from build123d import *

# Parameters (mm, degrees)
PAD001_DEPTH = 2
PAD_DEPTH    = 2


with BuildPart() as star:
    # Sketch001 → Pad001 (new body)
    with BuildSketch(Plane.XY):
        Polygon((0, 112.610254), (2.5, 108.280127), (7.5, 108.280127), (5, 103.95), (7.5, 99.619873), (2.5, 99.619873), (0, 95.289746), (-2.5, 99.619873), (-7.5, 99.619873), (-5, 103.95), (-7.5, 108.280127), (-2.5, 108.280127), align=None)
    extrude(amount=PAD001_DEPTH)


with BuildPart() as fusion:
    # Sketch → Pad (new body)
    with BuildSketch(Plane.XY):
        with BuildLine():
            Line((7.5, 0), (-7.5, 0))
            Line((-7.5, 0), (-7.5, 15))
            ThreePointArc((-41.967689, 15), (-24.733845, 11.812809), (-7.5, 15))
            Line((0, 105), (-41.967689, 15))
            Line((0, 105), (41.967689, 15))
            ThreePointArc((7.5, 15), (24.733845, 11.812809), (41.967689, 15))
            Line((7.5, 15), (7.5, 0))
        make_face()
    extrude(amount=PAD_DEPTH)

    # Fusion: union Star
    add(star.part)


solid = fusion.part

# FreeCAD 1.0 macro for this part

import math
import FreeCAD as App
import Part
import Sketcher
Q = App.Units.Quantity

doc = App.newDocument("Part")
params = doc.addObject("Spreadsheet::Sheet", "Params")
for row, (alias, value) in enumerate([
    ("sketch1_width", "5 mm"),
    ("sketch1_length", "5 mm"),
    ("pad1_length", "2 mm"),
    ("sketch2_width", "15 mm"),
    ("pad2_length", "2 mm"),
], start=1):
    params.set(f"A{row}", alias)
    params.set(f"B{row}", "=" + value)
    params.setAlias(f"B{row}", alias)

body = doc.addObject("PartDesign::Body", "Body")

# Sketch on XY plane
sketch1 = body.newObject("Sketcher::SketchObject", "Sketch")
sketch1.AttachmentSupport = (doc.getObject("XY_Plane"), [""])
sketch1.MapMode = "FlatFace"
sketch1.addGeometry(Part.LineSegment(App.Vector(2.5, 108.3, 0), App.Vector(0, 112.6, 0)), False)
sketch1.addGeometry(Part.LineSegment(App.Vector(0, 112.6, 0), App.Vector(-2.5, 108.3, 0)), False)
sketch1.addGeometry(Part.LineSegment(App.Vector(-2.5, 108.3, 0), App.Vector(-7.5, 108.3, 0)), False)
sketch1.addGeometry(Part.LineSegment(App.Vector(-7.5, 108.3, 0), App.Vector(-5, 104, 0)), False)
sketch1.addGeometry(Part.LineSegment(App.Vector(-5, 104, 0), App.Vector(-7.5, 99.6, 0)), False)
sketch1.addGeometry(Part.LineSegment(App.Vector(-7.5, 99.6, 0), App.Vector(-2.5, 99.6, 0)), False)
sketch1.addGeometry(Part.LineSegment(App.Vector(-2.5, 99.6, 0), App.Vector(0, 95.3, 0)), False)
sketch1.addGeometry(Part.LineSegment(App.Vector(0, 95.3, 0), App.Vector(2.5, 99.6, 0)), False)
sketch1.addGeometry(Part.LineSegment(App.Vector(2.5, 99.6, 0), App.Vector(7.5, 99.6, 0)), False)
sketch1.addGeometry(Part.LineSegment(App.Vector(7.5, 99.6, 0), App.Vector(5, 104, 0)), False)
sketch1.addGeometry(Part.LineSegment(App.Vector(5, 104, 0), App.Vector(7.5, 108.3, 0)), False)
sketch1.addGeometry(Part.LineSegment(App.Vector(7.5, 108.3, 0), App.Vector(2.5, 108.3, 0)), False)
sketch1.addConstraint(Sketcher.Constraint("Coincident", 0, 2, 1, 1))
sketch1.addConstraint(Sketcher.Constraint("Coincident", 1, 2, 2, 1))
sketch1.addConstraint(Sketcher.Constraint("Coincident", 2, 2, 3, 1))
sketch1.addConstraint(Sketcher.Constraint("Coincident", 3, 2, 4, 1))
sketch1.addConstraint(Sketcher.Constraint("Coincident", 4, 2, 5, 1))
sketch1.addConstraint(Sketcher.Constraint("Coincident", 5, 2, 6, 1))
sketch1.addConstraint(Sketcher.Constraint("Coincident", 6, 2, 7, 1))
sketch1.addConstraint(Sketcher.Constraint("Coincident", 7, 2, 8, 1))
sketch1.addConstraint(Sketcher.Constraint("Coincident", 8, 2, 9, 1))
sketch1.addConstraint(Sketcher.Constraint("Coincident", 9, 2, 10, 1))
sketch1.addConstraint(Sketcher.Constraint("Coincident", 10, 2, 11, 1))
sketch1.addConstraint(Sketcher.Constraint("Coincident", 11, 2, 0, 1))
sketch1.addConstraint(Sketcher.Constraint("Horizontal", 2))
sketch1.addConstraint(Sketcher.Constraint("Horizontal", 5))
sketch1.addConstraint(Sketcher.Constraint("Horizontal", 8))
sketch1.addConstraint(Sketcher.Constraint("Horizontal", 11))
sketch1.addConstraint(Sketcher.Constraint("Symmetric", 5, 2, 7, 2, -2))
sketch1.addConstraint(Sketcher.Constraint("Symmetric", 3, 2, 9, 2, -2))
sketch1.addConstraint(Sketcher.Constraint("Symmetric", 2, 2, 10, 2, -2))
sketch1.addConstraint(Sketcher.Constraint("PointOnObject", 0, 2, -2))
sketch1.addConstraint(Sketcher.Constraint("PointOnObject", 6, 2, -2))
sketch1.addConstraint(Sketcher.Constraint("Parallel", 0, 3))
sketch1.addConstraint(Sketcher.Constraint("Parallel", 1, 4))
sketch1.addConstraint(Sketcher.Constraint("Parallel", 3, 6))
sketch1.addConstraint(Sketcher.Constraint("Parallel", 4, 7))
sketch1.addConstraint(Sketcher.Constraint("Parallel", 6, 9))
sketch1.addConstraint(Sketcher.Constraint("Vertical", 2, 2, 4, 2))
sketch1.addConstraint(Sketcher.Constraint("Vertical", 1, 2, 5, 2))
sketch1.addConstraint(Sketcher.Constraint("Equal", 1, 3))
sketch1.addConstraint(Sketcher.Constraint("DistanceX", 2, 2, 2, 1, Q("5 mm")))
sketch1.addConstraint(Sketcher.Constraint("Angle", 0, Q("120 deg")))
sketch1.addConstraint(Sketcher.Constraint("Distance", 0, Q("5 mm")))
sketch1.addConstraint(Sketcher.Constraint("DistanceY", -1, 1, 3, 2, Q("103.95 mm")))
sketch1.setExpression("Constraints[29]", "Params.sketch1_width")
sketch1.setExpression("Constraints[31]", "Params.sketch1_length")
pad1 = body.newObject("PartDesign::Pad", "Pad")
pad1.Profile = sketch1
pad1.setExpression("Length", "Params.pad1_length")
body2 = doc.addObject("PartDesign::Body", "Body001")

# Sketch on XY plane
sketch2 = body2.newObject("Sketcher::SketchObject", "Sketch001")
sketch2.AttachmentSupport = (doc.getObject("XY_Plane001"), [""])
sketch2.MapMode = "FlatFace"
sketch2.addGeometry(Part.LineSegment(App.Vector(-8, 0, 0), App.Vector(8, 0, 0)), False)
sketch2.addGeometry(Part.LineSegment(App.Vector(8, 0, 0), App.Vector(8, 15, 0)), False)
sketch2.addGeometry(Part.ArcOfCircle(Part.Circle(App.Vector(25, 60, 0), App.Vector(0, 0, 1), 48), math.radians(-111), math.radians(-69)), False)
sketch2.addGeometry(Part.LineSegment(App.Vector(42, 15, 0), App.Vector(0, 105, 0)), False)
sketch2.addGeometry(Part.LineSegment(App.Vector(0, 105, 0), App.Vector(-42, 15, 0)), False)
sketch2.addGeometry(Part.ArcOfCircle(Part.Circle(App.Vector(-25, 60, 0), App.Vector(0, 0, 1), 48), math.radians(-111), math.radians(-69)), False)
sketch2.addGeometry(Part.LineSegment(App.Vector(-8, 15, 0), App.Vector(-8, 0, 0)), False)
sketch2.addConstraint(Sketcher.Constraint("Coincident", 0, 2, 1, 1))
sketch2.addConstraint(Sketcher.Constraint("Coincident", 1, 2, 2, 1))
sketch2.addConstraint(Sketcher.Constraint("Coincident", 2, 2, 3, 1))
sketch2.addConstraint(Sketcher.Constraint("Coincident", 3, 2, 4, 1))
sketch2.addConstraint(Sketcher.Constraint("Coincident", 4, 2, 5, 1))
sketch2.addConstraint(Sketcher.Constraint("Coincident", 5, 2, 6, 1))
sketch2.addConstraint(Sketcher.Constraint("Coincident", 6, 2, 0, 1))
sketch2.addConstraint(Sketcher.Constraint("Horizontal", 0))
sketch2.addConstraint(Sketcher.Constraint("Vertical", 1))
sketch2.addConstraint(Sketcher.Constraint("Vertical", 6))
sketch2.addConstraint(Sketcher.Constraint("Equal", 2, 5))
sketch2.addConstraint(Sketcher.Constraint("Symmetric", 0, 2, 6, 2, -1, 1))
sketch2.addConstraint(Sketcher.Constraint("Symmetric", 2, 3, 5, 3, -2))
sketch2.addConstraint(Sketcher.Constraint("PointOnObject", 3, 2, -2))
sketch2.addConstraint(Sketcher.Constraint("Horizontal", 1, 2, 2, 2))
sketch2.addConstraint(Sketcher.Constraint("Horizontal", 2, 2, 4, 2))
sketch2.addConstraint(Sketcher.Constraint("Equal", 0, 1))
sketch2.addConstraint(Sketcher.Constraint("DistanceX", 0, 1, 0, 2, Q("15 mm")))
sketch2.addConstraint(Sketcher.Constraint("Angle", 3, Q("115 deg")))
sketch2.addConstraint(Sketcher.Constraint("DistanceY", -1, 1, 3, 2, Q("105 mm")))
sketch2.addConstraint(Sketcher.Constraint("Radius", 2, Q("48.187194 mm")))
sketch2.setExpression("Constraints[17]", "Params.sketch2_width")
pad2 = body2.newObject("PartDesign::Pad", "Pad001")
pad2.Profile = sketch2
pad2.setExpression("Length", "Params.pad2_length")
doc.recompute()

boolean = body2.newObject("PartDesign::Boolean", "Boolean")
boolean.Type = "Fuse"
boolean.addObjects([body])

doc.recompute()
